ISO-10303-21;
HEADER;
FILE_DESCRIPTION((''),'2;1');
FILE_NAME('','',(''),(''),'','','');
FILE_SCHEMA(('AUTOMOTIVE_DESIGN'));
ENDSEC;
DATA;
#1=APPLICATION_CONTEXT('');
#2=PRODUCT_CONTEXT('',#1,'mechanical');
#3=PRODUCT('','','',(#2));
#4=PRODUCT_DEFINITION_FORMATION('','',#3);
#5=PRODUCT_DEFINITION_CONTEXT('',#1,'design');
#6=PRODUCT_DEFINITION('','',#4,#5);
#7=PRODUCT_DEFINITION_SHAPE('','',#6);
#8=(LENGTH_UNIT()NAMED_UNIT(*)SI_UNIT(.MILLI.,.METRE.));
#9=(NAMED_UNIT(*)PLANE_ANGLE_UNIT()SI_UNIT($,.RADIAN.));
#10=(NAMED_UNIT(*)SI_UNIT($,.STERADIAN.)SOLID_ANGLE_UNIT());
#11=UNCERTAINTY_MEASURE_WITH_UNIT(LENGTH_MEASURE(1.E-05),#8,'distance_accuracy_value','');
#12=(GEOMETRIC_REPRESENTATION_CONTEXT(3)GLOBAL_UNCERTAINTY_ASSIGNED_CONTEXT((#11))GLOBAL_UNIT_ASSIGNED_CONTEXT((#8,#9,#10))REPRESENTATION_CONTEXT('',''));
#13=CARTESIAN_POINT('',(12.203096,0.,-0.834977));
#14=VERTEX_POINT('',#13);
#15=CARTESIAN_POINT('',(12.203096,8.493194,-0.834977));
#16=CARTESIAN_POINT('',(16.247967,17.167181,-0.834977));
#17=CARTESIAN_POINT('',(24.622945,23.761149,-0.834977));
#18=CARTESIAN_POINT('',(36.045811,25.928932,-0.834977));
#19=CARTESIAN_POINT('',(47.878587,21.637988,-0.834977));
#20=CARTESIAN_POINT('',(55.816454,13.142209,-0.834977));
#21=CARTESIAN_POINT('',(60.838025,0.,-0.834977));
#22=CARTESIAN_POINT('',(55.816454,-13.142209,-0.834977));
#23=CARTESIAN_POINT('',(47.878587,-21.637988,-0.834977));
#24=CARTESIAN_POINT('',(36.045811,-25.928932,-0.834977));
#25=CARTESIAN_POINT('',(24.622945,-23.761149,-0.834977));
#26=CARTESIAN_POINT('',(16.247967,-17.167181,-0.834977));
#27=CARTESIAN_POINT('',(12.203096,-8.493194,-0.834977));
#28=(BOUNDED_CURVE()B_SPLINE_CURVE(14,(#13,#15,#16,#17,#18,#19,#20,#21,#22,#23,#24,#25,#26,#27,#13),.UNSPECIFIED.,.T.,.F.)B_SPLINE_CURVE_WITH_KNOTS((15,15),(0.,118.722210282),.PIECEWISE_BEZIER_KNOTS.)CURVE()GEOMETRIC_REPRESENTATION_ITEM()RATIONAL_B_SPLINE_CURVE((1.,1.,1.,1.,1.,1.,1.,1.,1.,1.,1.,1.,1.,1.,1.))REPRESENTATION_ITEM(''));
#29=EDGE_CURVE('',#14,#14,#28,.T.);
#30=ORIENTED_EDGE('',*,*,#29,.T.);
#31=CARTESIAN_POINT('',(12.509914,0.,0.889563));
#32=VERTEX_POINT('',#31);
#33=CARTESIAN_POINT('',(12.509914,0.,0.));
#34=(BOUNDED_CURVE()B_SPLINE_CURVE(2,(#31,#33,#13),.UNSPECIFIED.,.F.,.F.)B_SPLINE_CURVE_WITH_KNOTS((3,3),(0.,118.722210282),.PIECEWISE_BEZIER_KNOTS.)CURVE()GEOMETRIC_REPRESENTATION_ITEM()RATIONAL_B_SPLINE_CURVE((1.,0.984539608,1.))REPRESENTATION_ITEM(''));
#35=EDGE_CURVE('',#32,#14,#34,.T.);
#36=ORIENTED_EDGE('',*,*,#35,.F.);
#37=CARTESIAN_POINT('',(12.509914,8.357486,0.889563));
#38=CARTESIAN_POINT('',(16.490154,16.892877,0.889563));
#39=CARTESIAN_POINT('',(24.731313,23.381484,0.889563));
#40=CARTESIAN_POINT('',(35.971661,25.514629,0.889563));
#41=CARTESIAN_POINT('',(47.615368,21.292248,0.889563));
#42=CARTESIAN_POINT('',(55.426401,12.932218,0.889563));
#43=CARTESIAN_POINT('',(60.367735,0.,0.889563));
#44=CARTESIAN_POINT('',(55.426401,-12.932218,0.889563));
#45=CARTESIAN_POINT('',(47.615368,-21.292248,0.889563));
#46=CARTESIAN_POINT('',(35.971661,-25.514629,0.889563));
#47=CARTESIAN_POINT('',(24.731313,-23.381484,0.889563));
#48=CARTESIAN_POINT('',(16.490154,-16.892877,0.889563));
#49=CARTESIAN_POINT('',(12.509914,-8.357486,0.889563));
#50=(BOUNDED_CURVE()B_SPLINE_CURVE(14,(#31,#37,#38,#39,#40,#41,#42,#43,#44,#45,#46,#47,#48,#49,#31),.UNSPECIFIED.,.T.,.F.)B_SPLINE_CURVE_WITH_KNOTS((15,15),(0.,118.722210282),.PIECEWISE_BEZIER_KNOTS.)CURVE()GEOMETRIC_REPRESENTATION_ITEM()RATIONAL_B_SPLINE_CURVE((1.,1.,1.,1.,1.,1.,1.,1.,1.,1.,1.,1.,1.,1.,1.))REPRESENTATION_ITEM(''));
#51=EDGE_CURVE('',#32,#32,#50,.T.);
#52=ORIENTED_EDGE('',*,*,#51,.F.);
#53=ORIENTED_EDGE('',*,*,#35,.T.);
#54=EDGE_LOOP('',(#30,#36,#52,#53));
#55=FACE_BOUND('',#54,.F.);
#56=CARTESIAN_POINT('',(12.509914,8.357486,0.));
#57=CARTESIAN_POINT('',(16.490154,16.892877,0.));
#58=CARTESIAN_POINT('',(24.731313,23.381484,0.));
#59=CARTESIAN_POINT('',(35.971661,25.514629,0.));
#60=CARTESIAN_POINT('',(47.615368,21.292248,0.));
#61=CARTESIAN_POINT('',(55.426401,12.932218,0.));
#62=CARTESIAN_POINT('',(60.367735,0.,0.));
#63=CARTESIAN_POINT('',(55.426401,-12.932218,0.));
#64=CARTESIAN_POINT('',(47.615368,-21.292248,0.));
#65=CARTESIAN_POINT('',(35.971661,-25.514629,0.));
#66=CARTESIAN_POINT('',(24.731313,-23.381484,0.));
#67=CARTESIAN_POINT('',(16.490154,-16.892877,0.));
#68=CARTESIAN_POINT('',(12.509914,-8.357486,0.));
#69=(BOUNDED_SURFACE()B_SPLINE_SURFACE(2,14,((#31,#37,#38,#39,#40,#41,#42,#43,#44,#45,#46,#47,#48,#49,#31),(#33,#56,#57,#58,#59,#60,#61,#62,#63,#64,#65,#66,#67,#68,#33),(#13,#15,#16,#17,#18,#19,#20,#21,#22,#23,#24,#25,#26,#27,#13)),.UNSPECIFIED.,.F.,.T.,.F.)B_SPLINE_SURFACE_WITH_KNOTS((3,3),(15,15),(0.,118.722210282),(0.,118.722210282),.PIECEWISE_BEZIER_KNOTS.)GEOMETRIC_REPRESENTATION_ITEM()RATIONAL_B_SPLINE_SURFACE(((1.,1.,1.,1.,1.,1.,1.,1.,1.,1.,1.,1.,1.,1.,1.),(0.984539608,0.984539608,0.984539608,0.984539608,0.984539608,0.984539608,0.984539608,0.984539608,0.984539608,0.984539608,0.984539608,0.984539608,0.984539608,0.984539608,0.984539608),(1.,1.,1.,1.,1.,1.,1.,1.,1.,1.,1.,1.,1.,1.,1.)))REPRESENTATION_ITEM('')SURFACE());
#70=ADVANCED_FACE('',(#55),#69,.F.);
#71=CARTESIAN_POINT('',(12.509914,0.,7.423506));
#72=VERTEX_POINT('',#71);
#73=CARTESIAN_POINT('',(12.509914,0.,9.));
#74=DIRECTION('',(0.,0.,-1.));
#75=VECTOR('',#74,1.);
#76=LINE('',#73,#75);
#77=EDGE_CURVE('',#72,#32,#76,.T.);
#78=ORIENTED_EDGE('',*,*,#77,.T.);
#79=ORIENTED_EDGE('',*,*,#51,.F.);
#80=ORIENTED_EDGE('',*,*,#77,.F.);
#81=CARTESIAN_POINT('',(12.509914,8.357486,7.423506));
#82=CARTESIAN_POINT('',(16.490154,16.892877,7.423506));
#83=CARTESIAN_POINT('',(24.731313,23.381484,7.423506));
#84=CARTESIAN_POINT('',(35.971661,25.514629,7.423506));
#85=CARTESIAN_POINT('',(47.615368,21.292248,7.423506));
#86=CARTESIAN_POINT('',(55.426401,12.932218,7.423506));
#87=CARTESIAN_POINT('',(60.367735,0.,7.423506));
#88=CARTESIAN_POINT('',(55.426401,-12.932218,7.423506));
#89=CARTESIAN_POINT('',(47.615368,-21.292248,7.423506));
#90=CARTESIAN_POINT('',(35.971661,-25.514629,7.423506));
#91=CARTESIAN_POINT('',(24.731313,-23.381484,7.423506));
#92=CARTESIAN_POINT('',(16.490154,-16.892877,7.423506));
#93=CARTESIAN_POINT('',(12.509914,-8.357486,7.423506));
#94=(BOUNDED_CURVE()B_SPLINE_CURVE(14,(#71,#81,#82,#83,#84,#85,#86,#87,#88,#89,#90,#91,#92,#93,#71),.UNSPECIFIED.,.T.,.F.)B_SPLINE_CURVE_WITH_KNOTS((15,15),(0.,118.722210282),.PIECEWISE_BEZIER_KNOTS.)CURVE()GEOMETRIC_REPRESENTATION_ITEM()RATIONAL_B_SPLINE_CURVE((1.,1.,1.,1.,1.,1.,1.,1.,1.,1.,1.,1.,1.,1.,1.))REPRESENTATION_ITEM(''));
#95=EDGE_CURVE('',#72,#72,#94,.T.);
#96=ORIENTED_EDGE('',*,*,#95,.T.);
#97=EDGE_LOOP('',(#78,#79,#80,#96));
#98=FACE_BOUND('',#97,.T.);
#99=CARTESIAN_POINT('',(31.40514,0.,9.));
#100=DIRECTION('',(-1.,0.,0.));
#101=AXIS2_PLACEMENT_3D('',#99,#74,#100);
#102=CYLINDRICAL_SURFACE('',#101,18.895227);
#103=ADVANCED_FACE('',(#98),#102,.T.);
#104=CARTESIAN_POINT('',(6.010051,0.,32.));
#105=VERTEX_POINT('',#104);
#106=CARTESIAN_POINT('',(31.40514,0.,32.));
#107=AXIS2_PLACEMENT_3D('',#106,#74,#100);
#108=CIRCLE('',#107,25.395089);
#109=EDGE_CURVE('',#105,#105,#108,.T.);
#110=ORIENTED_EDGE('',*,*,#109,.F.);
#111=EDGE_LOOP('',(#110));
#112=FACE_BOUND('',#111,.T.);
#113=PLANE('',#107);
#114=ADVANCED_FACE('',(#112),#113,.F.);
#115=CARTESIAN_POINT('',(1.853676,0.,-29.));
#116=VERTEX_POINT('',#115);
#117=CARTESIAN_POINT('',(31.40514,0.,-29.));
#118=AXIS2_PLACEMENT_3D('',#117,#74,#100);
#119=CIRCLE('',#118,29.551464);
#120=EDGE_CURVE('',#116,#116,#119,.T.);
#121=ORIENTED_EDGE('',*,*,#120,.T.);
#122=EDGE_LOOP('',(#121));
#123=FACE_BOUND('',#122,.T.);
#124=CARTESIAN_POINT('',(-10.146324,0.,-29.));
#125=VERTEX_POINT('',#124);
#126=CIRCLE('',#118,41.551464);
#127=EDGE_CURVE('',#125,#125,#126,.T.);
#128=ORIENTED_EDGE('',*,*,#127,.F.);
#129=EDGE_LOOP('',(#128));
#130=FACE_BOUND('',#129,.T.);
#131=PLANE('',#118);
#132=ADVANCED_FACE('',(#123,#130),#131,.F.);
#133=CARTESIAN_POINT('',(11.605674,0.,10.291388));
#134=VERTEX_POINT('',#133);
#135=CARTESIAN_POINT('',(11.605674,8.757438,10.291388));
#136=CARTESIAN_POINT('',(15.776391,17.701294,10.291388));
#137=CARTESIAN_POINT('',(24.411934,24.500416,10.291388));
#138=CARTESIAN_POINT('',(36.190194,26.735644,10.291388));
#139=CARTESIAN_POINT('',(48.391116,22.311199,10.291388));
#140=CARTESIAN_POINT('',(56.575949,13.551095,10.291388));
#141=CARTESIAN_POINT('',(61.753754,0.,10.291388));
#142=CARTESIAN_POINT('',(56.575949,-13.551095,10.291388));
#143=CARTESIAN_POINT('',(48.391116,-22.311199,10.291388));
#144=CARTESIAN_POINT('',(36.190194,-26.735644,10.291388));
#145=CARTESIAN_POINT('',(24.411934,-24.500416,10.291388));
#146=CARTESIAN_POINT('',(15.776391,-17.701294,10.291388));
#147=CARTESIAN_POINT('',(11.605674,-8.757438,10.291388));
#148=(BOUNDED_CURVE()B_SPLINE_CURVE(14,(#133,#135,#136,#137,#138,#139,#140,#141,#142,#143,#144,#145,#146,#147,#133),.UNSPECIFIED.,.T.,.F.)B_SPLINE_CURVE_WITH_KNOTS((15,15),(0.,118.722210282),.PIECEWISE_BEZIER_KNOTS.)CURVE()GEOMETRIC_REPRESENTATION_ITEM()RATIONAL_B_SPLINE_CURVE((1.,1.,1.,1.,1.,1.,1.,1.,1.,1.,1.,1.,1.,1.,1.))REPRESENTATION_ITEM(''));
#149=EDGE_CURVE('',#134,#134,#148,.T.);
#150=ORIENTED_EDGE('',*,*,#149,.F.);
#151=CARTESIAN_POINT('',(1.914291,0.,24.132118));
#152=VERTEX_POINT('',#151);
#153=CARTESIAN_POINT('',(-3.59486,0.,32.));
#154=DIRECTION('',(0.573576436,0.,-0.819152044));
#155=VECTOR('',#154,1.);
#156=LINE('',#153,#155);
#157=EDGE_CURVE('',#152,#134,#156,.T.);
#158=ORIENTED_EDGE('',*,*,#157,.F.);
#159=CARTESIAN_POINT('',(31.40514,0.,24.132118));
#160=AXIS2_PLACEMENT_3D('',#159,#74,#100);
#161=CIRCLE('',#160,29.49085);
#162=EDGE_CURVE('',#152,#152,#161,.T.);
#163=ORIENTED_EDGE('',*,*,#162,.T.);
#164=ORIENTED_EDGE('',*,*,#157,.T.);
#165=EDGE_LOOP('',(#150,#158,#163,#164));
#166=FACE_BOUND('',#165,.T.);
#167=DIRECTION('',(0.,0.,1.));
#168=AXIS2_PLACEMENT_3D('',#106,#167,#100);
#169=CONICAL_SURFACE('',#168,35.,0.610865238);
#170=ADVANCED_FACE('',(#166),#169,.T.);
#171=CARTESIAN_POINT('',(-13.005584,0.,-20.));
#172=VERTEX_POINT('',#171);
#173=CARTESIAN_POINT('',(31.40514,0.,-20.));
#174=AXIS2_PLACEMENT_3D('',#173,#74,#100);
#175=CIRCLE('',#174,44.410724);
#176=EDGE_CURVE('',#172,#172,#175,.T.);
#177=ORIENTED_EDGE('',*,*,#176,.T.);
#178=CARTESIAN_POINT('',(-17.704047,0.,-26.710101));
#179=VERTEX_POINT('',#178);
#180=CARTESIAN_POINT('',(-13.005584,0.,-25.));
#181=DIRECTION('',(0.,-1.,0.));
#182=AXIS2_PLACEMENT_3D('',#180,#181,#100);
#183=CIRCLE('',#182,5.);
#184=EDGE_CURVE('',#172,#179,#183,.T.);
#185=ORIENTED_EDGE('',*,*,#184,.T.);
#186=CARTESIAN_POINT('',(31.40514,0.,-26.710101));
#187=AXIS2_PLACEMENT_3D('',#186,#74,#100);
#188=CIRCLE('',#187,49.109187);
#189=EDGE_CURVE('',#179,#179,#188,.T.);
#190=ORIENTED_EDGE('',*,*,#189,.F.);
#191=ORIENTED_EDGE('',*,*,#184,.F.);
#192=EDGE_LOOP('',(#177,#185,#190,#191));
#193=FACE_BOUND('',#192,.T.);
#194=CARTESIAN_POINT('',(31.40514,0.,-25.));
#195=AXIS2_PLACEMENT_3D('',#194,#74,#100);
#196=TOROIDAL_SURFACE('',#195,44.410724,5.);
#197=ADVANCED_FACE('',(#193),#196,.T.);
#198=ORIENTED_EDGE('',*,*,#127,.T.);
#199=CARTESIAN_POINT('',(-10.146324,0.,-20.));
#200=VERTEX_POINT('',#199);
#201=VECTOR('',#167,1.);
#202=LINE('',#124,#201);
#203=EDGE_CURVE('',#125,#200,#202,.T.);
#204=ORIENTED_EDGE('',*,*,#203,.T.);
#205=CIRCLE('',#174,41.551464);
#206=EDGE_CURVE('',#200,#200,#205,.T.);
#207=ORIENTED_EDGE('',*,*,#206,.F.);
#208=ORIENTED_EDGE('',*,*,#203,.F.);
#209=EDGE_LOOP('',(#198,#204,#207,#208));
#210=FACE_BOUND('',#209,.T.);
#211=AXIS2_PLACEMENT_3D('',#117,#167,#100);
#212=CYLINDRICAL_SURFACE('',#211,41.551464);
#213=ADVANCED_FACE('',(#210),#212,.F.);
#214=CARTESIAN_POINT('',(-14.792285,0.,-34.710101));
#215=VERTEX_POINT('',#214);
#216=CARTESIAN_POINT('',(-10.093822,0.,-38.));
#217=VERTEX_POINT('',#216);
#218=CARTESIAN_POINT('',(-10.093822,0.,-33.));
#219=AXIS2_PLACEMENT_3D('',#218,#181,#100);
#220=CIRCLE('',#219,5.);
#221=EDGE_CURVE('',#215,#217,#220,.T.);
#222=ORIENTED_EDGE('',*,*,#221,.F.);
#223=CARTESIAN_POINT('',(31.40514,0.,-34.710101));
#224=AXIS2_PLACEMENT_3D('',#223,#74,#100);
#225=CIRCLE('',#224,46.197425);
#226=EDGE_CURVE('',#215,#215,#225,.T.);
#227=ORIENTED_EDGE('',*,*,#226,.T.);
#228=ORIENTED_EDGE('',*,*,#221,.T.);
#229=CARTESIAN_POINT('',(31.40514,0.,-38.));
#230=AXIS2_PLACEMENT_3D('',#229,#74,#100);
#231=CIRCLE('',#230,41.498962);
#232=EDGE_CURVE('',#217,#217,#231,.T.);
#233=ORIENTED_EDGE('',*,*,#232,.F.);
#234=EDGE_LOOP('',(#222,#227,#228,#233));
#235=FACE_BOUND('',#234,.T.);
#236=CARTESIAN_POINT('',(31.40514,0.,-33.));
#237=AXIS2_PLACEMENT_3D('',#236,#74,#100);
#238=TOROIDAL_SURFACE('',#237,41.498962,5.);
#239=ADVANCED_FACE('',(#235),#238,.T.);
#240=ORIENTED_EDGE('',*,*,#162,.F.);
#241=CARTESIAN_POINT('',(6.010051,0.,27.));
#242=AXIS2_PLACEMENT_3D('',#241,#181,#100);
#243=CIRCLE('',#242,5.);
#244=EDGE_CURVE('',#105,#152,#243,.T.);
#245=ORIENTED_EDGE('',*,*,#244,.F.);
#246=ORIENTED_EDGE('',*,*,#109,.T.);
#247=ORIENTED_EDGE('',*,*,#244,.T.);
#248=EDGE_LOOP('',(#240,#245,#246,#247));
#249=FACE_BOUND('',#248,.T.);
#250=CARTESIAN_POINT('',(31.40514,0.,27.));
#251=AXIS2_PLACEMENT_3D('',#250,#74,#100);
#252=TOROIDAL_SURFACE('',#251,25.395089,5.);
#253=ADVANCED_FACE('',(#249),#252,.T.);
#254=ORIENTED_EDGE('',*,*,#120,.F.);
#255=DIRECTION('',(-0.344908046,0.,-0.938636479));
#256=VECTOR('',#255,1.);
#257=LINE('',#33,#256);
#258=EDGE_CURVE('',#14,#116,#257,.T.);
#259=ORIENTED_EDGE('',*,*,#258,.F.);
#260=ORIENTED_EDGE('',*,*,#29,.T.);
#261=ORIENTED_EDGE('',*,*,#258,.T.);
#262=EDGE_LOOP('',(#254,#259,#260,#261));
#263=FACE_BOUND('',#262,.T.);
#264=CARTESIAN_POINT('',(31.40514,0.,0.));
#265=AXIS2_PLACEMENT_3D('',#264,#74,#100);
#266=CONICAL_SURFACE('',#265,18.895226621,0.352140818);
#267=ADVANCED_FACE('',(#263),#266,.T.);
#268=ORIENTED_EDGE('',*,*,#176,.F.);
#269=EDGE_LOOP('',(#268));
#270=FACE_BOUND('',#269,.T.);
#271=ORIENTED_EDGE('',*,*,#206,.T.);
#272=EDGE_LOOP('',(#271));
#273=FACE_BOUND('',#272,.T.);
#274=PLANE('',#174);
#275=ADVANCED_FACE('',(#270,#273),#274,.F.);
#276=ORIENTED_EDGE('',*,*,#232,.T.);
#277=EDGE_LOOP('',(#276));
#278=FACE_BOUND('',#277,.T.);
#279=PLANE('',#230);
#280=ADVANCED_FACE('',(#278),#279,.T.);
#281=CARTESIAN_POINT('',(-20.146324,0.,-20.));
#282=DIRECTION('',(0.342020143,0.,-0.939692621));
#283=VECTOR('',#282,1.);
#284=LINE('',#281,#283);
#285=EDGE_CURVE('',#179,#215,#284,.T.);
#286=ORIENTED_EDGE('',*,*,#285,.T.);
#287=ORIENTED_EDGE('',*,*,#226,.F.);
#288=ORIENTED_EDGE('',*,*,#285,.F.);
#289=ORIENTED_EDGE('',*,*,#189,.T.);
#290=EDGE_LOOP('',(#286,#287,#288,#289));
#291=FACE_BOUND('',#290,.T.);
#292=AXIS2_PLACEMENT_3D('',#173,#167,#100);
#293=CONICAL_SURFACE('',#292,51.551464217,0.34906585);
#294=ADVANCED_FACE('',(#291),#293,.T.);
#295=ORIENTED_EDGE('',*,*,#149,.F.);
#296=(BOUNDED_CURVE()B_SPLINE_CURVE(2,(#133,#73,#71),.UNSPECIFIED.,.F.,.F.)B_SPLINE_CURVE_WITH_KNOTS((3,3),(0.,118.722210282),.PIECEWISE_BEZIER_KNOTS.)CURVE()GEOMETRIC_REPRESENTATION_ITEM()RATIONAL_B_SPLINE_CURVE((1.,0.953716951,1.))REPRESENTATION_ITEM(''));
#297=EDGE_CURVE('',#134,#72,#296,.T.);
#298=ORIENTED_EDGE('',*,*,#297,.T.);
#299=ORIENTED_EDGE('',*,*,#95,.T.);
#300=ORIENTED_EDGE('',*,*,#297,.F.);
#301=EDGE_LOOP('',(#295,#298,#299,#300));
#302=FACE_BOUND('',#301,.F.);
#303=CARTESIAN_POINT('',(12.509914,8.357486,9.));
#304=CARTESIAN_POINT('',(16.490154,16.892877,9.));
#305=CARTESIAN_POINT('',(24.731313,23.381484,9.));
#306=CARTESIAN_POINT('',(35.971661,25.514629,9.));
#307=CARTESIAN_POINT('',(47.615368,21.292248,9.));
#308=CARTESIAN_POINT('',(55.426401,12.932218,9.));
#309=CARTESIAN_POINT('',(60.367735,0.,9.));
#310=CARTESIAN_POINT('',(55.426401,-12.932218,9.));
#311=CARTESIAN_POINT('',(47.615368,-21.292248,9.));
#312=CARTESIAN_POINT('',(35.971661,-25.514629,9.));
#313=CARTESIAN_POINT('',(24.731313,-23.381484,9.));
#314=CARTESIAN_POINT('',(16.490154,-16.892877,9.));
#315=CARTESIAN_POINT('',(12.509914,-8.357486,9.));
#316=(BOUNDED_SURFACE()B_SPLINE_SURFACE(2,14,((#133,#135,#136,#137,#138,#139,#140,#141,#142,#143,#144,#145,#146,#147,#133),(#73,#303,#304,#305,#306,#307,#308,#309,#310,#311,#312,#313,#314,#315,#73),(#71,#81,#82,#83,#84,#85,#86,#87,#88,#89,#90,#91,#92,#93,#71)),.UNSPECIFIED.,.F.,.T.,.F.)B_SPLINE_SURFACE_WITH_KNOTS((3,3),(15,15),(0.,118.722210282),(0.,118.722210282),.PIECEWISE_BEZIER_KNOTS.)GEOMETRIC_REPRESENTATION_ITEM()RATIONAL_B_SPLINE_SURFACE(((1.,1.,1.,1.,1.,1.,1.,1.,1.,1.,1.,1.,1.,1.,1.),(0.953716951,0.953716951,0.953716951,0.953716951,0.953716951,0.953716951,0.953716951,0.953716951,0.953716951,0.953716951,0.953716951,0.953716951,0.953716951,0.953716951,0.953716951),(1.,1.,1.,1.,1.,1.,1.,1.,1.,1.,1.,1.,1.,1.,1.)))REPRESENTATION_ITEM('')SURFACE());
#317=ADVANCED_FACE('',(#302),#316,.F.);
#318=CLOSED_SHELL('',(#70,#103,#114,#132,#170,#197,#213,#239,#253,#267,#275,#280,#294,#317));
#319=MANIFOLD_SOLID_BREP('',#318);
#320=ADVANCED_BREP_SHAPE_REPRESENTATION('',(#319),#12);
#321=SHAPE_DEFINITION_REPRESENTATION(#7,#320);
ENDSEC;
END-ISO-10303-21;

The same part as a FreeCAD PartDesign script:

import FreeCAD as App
import Part
import Sketcher
Q = App.Units.Quantity


def edges_at(feature, points):
    """Names of the edges that pass closest to the given points."""
    edges = feature.Shape.Edges
    near = lambda p: min(range(len(edges)), key=lambda i: edges[i].distToShape(Part.Vertex(*p))[0])
    return sorted({f"Edge{near(p) + 1}" for p in points})


def add_polygon(sketch, points):
    """Adds a closed chain of lines whose ends are joined by coincident constraints."""
    first, n = sketch.GeometryCount, len(points)
    for a, b in zip(points, points[1:] + points[:1]):
        sketch.addGeometry(Part.LineSegment(App.Vector(*a, 0), App.Vector(*b, 0)), False)
    for i in range(n):
        sketch.addConstraint(Sketcher.Constraint("Coincident", first + i, 2, first + (i + 1) % n, 1))

doc = App.newDocument("Part")
body = doc.addObject("PartDesign::Body", "Body")

sketch1 = body.newObject("Sketcher::SketchObject", "Sketch")
sketch1.AttachmentSupport = (doc.getObject("XZ_Plane"), [""])
sketch1.MapMode = "FlatFace"
add_polygon(sketch1, [(-14, -38), (31, -38), (31, 32), (-4, 32), (13, 9), (13, 0), (2, -29), (-10, -29), (-10, -20), (-20, -20)])
sketch1.addGeometry(Part.LineSegment(App.Vector(31, 32, 0), App.Vector(31, -38, 0)), True)
sketch1.addConstraint(Sketcher.Constraint("Horizontal", 0))
sketch1.addConstraint(Sketcher.Constraint("Vertical", 1))
sketch1.addConstraint(Sketcher.Constraint("Horizontal", 2))
sketch1.addConstraint(Sketcher.Constraint("Vertical", 4))
sketch1.addConstraint(Sketcher.Constraint("Horizontal", 6))
sketch1.addConstraint(Sketcher.Constraint("Vertical", 7))
sketch1.addConstraint(Sketcher.Constraint("Horizontal", 8))
sketch1.addConstraint(Sketcher.Constraint("Vertical", 10))
sketch1.addConstraint(Sketcher.Constraint("Coincident", 10, 1, 1, 2))
sketch1.addConstraint(Sketcher.Constraint("PointOnObject", 4, 2, -1))
sketch1.addConstraint(Sketcher.Constraint("Horizontal", 9, 2, 10, 2))
sketch1.addConstraint(Sketcher.Constraint("Equal", 4, 7))
sketch1.addConstraint(Sketcher.Constraint("DistanceX", 0, 1, 0, 2, 45.0))
sketch1.addConstraint(Sketcher.Constraint("DistanceX", 2, 2, 2, 1, 35.0))
sketch1.addConstraint(Sketcher.Constraint("DistanceX", 6, 2, 6, 1, 12.0))
sketch1.addConstraint(Sketcher.Constraint("DistanceX", 8, 2, 8, 1, 10.0))
sketch1.addConstraint(Sketcher.Constraint("DistanceY", 1, 1, 1, 2, 70.0))
sketch1.addConstraint(Sketcher.Constraint("DistanceY", 4, 2, 4, 1, 9.0))
sketch1.addConstraint(Sketcher.Constraint("Angle", 3, Q("-55 deg")))
sketch1.addConstraint(Sketcher.Constraint("Angle", 9, Q("-70 deg")))
sketch1.addConstraint(Sketcher.Constraint("DistanceY", 0, 2, -1, 1, 38.0))
sketch1.addConstraint(Sketcher.Constraint("DistanceY", 5, 2, -1, 1, 29.0))
sketch1.addConstraint(Sketcher.Constraint("DistanceX", -1, 1, 0, 2, 31.40514))
revolution = body.newObject("PartDesign::Revolution", "Revolution")
revolution.Profile = sketch1
revolution.ReferenceAxis = (sketch1, ["Axis0"])
revolution.Angle = 360
doc.recompute()

fillet = body.newObject("PartDesign::Fillet", "Fillet")
fillet.Base = (revolution, edges_at(revolution, [(66.405, 0, 32), (82.957, 0, -20)]))
fillet.Radius = 5
doc.recompute()

fillet2 = body.newObject("PartDesign::Fillet", "Fillet001")
fillet2.Base = (fillet, edges_at(fillet, [(50.3, 0, 0), (50.3, 0, 9)]))
fillet2.Radius = 5
doc.recompute()

fillet3 = body.newObject("PartDesign::Fillet", "Fillet002")
fillet3.Base = (fillet2, edges_at(fillet2, [(76.405, 0, -38)]))
fillet3.Radius = 5

doc.recompute()
